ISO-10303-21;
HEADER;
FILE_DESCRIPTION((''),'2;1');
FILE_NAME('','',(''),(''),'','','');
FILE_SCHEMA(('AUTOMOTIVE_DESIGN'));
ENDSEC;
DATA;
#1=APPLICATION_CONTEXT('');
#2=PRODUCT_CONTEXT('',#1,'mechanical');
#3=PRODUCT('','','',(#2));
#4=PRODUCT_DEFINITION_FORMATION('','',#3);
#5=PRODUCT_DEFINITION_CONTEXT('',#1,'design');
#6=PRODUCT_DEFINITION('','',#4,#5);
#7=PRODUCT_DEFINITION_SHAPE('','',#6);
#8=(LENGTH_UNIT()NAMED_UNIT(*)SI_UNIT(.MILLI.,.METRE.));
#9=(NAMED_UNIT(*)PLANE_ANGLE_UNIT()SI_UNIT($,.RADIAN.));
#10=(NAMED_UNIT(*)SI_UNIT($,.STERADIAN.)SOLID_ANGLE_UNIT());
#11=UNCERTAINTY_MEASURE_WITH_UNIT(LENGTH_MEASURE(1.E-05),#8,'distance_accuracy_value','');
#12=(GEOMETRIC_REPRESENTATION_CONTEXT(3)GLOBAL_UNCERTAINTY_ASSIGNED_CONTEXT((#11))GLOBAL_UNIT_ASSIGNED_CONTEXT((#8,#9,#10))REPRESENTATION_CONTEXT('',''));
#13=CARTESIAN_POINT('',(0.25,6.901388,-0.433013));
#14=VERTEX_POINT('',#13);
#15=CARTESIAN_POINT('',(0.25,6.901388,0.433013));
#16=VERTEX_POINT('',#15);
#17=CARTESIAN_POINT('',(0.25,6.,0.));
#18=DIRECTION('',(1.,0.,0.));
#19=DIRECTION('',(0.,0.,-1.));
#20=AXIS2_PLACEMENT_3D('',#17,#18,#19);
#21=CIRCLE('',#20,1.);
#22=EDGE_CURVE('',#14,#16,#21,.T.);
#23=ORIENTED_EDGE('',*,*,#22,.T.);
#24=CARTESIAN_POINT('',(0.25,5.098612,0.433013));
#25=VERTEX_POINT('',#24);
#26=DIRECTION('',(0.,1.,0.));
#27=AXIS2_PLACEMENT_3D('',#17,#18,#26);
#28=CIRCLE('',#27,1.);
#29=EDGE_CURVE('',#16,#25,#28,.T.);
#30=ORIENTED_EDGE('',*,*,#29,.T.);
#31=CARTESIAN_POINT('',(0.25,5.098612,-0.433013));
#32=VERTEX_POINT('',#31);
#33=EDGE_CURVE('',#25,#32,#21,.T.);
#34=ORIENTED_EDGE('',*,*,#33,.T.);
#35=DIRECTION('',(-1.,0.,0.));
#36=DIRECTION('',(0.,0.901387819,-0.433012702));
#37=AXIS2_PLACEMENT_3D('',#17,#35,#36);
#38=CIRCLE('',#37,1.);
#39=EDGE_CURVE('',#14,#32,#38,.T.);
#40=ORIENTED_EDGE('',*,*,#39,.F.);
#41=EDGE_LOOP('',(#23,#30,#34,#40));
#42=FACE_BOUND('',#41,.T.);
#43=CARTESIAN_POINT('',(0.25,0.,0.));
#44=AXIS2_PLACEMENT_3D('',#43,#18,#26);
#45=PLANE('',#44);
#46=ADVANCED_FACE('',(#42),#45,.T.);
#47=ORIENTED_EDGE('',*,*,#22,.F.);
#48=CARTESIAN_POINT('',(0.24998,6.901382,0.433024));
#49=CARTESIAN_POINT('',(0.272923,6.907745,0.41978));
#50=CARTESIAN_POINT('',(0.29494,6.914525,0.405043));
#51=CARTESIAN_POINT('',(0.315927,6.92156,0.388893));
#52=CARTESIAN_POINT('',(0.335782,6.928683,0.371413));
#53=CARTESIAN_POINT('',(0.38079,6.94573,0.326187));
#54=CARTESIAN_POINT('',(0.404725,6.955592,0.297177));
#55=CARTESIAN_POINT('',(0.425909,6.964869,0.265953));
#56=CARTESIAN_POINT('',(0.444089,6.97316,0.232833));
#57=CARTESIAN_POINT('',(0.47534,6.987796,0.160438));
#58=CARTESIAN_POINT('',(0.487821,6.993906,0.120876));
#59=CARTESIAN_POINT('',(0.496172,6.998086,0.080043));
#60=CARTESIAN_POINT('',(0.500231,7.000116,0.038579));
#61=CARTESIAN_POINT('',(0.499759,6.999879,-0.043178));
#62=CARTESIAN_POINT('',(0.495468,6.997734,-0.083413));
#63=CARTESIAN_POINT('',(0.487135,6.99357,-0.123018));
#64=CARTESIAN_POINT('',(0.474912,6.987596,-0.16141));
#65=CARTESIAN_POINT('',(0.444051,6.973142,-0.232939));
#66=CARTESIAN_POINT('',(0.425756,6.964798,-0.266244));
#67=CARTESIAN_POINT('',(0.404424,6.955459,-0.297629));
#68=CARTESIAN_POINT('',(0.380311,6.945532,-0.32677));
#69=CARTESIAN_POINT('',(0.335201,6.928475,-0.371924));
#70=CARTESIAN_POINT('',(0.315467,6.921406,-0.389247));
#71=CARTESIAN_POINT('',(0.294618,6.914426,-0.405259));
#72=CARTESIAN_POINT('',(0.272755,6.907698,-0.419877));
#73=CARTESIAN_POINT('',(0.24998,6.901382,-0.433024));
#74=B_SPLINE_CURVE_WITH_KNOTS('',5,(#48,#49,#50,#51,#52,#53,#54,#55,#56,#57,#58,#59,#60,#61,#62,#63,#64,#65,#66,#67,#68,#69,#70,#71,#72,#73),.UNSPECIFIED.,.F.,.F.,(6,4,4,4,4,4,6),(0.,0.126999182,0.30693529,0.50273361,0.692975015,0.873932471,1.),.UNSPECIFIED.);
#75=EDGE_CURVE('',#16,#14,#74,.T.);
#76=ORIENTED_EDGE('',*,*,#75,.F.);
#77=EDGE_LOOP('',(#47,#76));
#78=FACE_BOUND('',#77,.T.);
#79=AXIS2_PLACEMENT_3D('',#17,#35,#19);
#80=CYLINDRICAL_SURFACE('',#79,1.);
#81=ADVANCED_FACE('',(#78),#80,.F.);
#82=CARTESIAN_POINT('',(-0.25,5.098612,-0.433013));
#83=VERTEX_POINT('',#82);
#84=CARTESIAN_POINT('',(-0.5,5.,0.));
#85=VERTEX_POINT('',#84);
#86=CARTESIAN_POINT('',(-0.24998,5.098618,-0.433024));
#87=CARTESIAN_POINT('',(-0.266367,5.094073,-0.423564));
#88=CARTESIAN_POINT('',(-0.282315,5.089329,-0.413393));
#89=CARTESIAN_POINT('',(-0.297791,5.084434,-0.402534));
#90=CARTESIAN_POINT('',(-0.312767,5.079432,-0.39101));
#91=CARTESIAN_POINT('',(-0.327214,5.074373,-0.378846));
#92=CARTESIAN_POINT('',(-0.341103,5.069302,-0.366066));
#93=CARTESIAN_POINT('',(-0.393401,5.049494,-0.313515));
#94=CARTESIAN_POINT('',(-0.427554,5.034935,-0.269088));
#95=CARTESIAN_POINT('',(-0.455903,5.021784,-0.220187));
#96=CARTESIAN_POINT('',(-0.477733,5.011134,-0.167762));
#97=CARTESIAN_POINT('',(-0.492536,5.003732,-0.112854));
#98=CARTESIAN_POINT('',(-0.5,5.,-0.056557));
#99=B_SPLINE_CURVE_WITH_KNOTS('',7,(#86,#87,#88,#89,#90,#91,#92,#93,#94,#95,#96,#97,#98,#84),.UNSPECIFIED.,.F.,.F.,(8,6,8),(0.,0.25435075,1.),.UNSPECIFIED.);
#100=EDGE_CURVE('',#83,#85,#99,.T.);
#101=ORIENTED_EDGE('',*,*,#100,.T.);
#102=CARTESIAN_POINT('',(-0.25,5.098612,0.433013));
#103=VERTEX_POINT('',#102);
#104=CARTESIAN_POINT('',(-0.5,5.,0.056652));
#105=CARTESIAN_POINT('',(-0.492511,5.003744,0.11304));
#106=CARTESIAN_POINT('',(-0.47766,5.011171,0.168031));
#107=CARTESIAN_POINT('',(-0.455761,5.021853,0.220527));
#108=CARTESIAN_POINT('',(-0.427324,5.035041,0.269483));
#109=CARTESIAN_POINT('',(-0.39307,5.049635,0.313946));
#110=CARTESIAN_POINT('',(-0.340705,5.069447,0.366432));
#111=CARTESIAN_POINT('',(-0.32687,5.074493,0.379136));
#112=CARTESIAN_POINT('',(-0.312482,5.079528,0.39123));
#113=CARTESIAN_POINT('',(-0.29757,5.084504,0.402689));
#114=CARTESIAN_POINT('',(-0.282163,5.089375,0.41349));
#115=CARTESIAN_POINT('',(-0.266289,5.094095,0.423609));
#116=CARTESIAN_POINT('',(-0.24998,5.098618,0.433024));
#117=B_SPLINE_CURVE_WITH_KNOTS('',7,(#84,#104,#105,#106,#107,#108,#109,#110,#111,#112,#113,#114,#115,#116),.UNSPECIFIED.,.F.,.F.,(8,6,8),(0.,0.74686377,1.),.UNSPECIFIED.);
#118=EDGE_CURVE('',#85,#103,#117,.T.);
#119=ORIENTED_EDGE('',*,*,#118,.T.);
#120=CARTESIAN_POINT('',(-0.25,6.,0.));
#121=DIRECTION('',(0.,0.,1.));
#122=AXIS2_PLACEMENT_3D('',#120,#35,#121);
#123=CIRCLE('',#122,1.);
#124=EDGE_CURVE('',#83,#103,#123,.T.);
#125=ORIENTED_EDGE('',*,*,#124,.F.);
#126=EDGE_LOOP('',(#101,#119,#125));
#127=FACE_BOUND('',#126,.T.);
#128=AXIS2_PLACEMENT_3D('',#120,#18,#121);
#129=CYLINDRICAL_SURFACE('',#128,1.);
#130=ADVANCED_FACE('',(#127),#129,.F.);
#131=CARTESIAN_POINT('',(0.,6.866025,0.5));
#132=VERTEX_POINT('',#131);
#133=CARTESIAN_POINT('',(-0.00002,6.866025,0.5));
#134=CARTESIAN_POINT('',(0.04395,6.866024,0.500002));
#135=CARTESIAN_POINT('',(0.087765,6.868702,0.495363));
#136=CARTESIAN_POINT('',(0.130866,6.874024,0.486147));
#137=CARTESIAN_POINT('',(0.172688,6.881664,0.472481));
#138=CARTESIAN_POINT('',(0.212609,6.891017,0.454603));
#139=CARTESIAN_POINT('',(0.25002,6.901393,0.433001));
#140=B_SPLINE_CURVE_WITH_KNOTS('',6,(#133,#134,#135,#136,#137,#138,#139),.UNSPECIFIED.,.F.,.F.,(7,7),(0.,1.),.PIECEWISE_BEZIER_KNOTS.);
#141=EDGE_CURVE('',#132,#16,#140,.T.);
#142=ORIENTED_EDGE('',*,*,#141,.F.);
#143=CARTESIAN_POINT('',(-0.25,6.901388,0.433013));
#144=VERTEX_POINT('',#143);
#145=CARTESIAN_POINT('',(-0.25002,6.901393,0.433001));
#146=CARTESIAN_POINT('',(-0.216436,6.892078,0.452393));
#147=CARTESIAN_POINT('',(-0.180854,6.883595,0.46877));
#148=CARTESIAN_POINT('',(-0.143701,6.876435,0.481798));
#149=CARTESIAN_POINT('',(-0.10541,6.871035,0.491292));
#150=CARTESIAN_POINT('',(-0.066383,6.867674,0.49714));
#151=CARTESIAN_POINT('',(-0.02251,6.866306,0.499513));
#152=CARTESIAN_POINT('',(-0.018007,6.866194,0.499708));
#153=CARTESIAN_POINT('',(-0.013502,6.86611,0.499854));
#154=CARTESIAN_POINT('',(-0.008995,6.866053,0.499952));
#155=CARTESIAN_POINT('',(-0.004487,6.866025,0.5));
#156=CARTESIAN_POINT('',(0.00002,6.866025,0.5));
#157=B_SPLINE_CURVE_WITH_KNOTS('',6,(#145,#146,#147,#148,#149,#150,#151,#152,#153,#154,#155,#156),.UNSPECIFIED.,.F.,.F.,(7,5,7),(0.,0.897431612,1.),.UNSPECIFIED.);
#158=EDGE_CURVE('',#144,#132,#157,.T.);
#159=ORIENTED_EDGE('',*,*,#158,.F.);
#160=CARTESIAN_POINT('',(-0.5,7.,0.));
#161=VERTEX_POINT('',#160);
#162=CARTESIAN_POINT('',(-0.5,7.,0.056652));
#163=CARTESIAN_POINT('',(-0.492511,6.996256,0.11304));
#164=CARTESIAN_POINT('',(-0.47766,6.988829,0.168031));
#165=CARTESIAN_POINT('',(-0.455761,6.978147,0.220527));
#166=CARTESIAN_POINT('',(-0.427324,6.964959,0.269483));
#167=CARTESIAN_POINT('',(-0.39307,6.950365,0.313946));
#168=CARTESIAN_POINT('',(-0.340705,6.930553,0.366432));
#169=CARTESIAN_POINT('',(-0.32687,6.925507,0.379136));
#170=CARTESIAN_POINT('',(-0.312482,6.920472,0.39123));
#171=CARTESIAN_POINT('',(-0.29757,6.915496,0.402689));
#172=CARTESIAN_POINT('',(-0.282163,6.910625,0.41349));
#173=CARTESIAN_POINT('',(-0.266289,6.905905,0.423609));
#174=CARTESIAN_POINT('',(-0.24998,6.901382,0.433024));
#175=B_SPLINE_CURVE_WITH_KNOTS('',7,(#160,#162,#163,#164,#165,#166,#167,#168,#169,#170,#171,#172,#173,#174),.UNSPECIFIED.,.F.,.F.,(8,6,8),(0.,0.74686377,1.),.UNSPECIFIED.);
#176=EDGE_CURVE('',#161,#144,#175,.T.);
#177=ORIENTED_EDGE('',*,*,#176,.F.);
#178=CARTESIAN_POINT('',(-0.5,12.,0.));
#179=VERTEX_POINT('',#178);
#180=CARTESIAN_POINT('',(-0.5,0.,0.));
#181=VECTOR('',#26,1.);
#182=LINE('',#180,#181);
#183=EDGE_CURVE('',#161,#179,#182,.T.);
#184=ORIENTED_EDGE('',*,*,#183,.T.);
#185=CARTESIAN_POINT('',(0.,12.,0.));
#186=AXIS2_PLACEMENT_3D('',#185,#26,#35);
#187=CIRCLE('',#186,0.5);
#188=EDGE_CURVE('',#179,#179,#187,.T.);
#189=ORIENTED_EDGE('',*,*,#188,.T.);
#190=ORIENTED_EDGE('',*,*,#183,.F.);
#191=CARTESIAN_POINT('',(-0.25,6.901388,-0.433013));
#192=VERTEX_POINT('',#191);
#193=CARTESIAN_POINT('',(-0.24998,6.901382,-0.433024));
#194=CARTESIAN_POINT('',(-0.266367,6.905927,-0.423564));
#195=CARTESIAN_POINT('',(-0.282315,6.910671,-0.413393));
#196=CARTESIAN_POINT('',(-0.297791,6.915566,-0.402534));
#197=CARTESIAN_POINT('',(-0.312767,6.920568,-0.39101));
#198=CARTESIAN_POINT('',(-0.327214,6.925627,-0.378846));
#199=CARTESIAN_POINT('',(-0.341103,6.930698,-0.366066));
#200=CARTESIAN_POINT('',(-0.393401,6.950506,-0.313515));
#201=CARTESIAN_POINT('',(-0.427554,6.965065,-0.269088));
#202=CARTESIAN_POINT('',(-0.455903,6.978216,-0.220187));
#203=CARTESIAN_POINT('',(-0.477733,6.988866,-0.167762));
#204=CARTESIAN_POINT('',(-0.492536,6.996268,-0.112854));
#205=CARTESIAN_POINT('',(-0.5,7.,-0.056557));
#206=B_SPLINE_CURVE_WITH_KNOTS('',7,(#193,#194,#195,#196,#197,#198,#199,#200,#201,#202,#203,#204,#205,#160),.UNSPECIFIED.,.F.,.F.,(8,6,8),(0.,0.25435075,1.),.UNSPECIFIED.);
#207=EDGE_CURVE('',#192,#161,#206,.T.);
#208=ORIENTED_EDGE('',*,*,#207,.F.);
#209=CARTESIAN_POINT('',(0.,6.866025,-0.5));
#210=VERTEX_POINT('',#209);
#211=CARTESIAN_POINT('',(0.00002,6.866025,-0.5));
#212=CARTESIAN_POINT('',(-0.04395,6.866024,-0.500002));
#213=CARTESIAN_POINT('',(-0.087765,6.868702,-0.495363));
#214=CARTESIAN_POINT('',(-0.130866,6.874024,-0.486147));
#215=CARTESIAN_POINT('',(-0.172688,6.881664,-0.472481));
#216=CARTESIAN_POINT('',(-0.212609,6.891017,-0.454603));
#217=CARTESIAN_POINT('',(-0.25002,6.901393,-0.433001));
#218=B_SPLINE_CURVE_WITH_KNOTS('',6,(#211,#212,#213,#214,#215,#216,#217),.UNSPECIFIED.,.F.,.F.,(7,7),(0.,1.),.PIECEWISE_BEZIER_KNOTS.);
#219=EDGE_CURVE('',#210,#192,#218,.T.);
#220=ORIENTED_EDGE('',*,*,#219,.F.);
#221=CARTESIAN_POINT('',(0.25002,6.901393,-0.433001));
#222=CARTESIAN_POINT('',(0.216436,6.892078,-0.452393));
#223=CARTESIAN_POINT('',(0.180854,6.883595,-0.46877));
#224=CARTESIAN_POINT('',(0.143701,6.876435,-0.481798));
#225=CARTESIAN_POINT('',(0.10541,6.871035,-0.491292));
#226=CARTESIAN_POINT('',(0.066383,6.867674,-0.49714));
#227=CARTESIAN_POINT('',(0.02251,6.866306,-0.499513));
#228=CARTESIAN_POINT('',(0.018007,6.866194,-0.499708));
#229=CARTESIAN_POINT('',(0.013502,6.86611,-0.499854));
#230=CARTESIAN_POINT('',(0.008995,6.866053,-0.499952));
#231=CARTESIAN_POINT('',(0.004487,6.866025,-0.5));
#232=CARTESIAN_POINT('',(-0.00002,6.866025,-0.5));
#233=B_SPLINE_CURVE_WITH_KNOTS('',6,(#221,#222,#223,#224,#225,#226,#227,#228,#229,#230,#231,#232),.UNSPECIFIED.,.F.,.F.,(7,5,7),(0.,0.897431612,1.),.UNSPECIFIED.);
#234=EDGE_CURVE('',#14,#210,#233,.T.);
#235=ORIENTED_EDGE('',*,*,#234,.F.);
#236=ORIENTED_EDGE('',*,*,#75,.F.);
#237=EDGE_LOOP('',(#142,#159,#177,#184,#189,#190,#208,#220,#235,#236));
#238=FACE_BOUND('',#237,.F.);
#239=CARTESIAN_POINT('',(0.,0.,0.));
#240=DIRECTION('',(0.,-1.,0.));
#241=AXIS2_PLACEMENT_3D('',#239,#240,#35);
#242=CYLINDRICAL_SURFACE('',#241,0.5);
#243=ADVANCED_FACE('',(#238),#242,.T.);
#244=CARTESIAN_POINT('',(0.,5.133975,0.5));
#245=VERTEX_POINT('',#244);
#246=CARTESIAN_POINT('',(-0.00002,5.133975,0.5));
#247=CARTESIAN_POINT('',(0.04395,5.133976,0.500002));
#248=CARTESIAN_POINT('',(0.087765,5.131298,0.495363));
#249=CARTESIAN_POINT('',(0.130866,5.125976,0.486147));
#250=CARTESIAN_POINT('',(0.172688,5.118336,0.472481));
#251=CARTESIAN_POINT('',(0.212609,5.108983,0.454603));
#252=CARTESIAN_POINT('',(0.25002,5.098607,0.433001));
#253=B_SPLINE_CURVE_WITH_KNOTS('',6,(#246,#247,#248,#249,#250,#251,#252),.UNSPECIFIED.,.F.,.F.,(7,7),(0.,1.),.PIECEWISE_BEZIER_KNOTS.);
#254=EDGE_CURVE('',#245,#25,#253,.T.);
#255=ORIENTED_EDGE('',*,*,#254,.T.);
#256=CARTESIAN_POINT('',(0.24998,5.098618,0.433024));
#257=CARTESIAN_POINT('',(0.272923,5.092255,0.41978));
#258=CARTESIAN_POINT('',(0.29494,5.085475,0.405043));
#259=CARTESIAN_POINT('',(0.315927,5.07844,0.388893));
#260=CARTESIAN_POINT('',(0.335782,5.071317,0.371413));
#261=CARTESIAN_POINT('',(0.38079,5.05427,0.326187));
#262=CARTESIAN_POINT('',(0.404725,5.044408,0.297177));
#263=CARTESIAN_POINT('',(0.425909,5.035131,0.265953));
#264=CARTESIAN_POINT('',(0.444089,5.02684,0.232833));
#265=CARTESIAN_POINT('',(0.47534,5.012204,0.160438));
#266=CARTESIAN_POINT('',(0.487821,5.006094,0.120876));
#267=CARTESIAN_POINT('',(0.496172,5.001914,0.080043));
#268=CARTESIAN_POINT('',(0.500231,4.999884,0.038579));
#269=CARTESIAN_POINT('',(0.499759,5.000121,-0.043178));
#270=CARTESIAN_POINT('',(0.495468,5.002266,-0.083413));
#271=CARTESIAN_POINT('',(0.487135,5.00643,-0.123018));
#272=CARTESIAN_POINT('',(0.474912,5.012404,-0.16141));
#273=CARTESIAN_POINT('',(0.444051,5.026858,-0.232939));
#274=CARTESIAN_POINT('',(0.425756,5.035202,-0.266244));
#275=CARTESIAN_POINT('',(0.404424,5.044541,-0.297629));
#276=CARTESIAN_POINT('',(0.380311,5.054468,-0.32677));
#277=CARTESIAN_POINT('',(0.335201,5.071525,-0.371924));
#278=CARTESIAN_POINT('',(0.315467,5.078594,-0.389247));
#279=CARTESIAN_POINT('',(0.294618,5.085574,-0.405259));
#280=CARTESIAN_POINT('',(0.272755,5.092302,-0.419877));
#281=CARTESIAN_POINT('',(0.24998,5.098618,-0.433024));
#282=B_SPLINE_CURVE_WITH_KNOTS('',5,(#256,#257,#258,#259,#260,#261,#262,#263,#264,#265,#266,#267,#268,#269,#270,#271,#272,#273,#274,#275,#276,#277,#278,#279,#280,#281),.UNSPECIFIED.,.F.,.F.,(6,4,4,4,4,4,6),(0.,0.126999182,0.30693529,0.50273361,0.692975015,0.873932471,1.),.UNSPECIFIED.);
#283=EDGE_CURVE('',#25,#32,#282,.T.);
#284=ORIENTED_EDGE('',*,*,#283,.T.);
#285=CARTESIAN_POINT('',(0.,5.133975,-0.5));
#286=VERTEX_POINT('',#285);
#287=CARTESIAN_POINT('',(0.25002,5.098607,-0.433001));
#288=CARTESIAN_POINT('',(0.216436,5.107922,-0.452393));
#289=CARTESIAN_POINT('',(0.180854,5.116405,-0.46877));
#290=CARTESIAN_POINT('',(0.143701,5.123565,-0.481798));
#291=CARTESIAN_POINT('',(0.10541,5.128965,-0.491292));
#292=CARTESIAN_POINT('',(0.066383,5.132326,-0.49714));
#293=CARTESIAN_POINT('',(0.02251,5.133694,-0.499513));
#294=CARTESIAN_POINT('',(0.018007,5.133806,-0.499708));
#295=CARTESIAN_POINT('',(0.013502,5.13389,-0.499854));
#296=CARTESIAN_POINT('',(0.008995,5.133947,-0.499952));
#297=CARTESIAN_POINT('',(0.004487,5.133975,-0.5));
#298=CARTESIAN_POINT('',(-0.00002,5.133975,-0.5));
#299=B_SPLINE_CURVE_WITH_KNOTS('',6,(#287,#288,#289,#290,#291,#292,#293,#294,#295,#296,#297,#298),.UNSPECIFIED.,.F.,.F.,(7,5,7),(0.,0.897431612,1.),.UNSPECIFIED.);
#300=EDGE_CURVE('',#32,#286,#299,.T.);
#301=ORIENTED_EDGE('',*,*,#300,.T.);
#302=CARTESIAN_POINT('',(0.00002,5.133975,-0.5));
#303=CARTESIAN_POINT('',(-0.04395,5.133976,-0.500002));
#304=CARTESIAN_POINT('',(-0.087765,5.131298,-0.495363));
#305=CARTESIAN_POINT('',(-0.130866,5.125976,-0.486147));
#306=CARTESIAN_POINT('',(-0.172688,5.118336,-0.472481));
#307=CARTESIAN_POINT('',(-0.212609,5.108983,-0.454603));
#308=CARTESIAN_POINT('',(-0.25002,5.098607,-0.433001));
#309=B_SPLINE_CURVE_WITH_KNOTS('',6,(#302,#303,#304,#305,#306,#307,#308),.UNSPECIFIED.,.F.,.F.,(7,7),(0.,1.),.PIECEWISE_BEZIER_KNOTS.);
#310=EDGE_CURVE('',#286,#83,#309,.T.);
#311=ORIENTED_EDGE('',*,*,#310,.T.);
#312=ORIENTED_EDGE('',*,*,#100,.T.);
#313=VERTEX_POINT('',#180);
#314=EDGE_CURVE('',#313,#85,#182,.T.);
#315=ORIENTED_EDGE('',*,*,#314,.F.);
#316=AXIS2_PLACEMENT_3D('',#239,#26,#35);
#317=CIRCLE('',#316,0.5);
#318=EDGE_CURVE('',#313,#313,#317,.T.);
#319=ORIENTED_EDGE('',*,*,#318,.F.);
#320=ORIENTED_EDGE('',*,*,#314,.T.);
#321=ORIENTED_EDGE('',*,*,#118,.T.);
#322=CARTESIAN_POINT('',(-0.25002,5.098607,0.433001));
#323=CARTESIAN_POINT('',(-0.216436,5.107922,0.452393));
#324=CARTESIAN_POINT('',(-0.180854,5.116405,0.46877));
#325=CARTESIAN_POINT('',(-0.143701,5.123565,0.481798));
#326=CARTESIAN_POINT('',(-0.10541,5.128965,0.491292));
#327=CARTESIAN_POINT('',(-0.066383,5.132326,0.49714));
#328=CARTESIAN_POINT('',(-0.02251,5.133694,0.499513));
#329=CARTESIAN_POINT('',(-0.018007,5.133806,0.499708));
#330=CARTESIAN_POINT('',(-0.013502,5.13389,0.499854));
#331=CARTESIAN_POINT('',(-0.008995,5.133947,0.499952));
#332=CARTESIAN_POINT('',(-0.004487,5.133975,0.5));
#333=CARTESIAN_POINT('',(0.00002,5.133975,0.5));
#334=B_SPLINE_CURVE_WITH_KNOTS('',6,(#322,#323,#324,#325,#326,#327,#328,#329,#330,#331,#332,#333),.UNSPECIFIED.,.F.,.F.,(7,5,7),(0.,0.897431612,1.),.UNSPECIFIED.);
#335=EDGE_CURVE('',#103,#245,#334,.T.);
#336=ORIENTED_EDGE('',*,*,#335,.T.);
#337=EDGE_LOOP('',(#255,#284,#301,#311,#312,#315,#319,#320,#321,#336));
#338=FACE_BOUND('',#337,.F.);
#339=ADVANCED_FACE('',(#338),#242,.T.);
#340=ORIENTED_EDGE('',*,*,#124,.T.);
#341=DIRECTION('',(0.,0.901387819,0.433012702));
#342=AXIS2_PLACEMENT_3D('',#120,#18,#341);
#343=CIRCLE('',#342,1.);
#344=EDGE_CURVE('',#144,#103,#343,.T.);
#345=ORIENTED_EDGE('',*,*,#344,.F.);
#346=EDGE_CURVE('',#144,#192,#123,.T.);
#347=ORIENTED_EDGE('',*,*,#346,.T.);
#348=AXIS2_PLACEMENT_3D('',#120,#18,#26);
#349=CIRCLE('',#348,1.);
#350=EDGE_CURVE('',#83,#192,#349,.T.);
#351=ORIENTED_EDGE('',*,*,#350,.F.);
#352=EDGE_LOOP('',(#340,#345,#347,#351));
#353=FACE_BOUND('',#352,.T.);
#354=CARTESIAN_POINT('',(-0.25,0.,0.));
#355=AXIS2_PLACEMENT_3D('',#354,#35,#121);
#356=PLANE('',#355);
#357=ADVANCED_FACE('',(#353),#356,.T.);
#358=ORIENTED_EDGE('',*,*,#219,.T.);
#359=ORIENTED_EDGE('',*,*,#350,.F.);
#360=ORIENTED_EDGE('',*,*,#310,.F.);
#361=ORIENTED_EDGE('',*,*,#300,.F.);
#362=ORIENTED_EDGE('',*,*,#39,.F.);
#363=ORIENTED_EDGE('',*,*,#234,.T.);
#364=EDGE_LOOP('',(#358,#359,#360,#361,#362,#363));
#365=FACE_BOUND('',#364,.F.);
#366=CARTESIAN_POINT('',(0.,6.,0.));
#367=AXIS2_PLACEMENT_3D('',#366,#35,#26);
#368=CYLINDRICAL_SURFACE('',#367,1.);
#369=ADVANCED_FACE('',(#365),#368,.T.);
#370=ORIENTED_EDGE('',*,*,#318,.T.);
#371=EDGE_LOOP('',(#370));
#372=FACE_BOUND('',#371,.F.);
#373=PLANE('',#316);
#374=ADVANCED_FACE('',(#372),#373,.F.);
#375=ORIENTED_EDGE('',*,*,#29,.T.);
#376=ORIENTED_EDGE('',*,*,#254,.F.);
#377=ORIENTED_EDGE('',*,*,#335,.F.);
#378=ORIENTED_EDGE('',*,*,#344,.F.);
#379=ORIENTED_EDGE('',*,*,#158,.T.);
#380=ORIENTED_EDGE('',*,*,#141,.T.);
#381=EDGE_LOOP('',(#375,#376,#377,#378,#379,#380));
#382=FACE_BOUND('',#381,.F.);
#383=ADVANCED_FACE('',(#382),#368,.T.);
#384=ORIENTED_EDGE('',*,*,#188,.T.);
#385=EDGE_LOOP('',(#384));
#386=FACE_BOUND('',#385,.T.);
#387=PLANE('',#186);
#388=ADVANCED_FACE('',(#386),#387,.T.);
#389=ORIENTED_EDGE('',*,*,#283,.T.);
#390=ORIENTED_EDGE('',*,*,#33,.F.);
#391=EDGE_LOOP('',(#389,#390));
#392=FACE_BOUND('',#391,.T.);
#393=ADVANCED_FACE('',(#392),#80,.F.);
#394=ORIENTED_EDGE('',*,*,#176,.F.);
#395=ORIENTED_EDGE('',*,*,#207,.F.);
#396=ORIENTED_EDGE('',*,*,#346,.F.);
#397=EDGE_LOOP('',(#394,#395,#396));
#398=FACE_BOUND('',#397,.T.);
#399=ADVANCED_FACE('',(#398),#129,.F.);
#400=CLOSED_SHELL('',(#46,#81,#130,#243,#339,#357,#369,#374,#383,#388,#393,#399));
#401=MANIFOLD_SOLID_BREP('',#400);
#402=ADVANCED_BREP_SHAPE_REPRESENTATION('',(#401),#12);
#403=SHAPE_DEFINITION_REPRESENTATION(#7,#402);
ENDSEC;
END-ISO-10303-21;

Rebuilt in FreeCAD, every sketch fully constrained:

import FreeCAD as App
import Part
import Sketcher

V = App.Vector

doc = App.newDocument("Part")
body = doc.addObject("PartDesign::Body", "Body")

# Sketch on XZ plane
sketch1 = body.newObject("Sketcher::SketchObject", "Sketch")
sketch1.AttachmentSupport = (doc.getObject("XZ_Plane"), [""])
sketch1.MapMode = "FlatFace"
sketch1.addGeometry(Part.Circle(V(0, 0, 0), V(0, 0, 1), 0.5), False)
sketch1.addConstraint(Sketcher.Constraint("Coincident", 0, 3, -1, 1))
sketch1.addConstraint(Sketcher.Constraint("Diameter", 0, 1.0))
pad1 = body.newObject("PartDesign::Pad", "Pad")
pad1.Profile = sketch1
pad1.Length = 12
pad1.Reversed = True

# Sketch on YZ plane
sketch2 = body.newObject("Sketcher::SketchObject", "Sketch001")
sketch2.AttachmentSupport = (doc.getObject("YZ_Plane"), [""])
sketch2.MapMode = "FlatFace"
sketch2.addGeometry(Part.Circle(V(6, 0, 0), V(0, 0, 1), 1), False)
sketch2.addConstraint(Sketcher.Constraint("PointOnObject", 0, 3, -1))
sketch2.addConstraint(Sketcher.Constraint("Diameter", 0, 2.0))
sketch2.addConstraint(Sketcher.Constraint("DistanceX", -1, 1, 0, 3, 6.0))
pad2 = body.newObject("PartDesign::Pad", "Pad001")
pad2.Profile = sketch2
pad2.Length = 0.5
pad2.Midplane = True

# Sketch on YZ plane
sketch3 = body.newObject("Sketcher::SketchObject", "Sketch002")
sketch3.AttachmentSupport = (doc.getObject("YZ_Plane"), [""])
sketch3.MapMode = "FlatFace"
sketch3.AttachmentOffset = App.Placement(V(0, 0, -0.25), App.Rotation())
sketch3.addGeometry(Part.Circle(V(6, 0, 0), V(0, 0, 1), 1), False)
sketch3.addConstraint(Sketcher.Constraint("PointOnObject", 0, 3, -1))
sketch3.addConstraint(Sketcher.Constraint("Diameter", 0, 2.0))
sketch3.addConstraint(Sketcher.Constraint("DistanceX", -1, 1, 0, 3, 6.0))
pocket1 = body.newObject("PartDesign::Pocket", "Pocket")
pocket1.Profile = sketch3
pocket1.Length = 1.25

# Sketch on YZ plane
sketch4 = body.newObject("Sketcher::SketchObject", "Sketch003")
sketch4.AttachmentSupport = (doc.getObject("YZ_Plane"), [""])
sketch4.MapMode = "FlatFace"
sketch4.AttachmentOffset = App.Placement(V(0, 0, 0.25), App.Rotation())
sketch4.addGeometry(Part.Circle(V(6, 0, 0), V(0, 0, 1), 1), False)
sketch4.addConstraint(Sketcher.Constraint("PointOnObject", 0, 3, -1))
sketch4.addConstraint(Sketcher.Constraint("Diameter", 0, 2.0))
sketch4.addConstraint(Sketcher.Constraint("DistanceX", -1, 1, 0, 3, 6.0))
pocket2 = body.newObject("PartDesign::Pocket", "Pocket001")
pocket2.Profile = sketch4
pocket2.Length = 3
pocket2.Reversed = True

doc.recompute()
